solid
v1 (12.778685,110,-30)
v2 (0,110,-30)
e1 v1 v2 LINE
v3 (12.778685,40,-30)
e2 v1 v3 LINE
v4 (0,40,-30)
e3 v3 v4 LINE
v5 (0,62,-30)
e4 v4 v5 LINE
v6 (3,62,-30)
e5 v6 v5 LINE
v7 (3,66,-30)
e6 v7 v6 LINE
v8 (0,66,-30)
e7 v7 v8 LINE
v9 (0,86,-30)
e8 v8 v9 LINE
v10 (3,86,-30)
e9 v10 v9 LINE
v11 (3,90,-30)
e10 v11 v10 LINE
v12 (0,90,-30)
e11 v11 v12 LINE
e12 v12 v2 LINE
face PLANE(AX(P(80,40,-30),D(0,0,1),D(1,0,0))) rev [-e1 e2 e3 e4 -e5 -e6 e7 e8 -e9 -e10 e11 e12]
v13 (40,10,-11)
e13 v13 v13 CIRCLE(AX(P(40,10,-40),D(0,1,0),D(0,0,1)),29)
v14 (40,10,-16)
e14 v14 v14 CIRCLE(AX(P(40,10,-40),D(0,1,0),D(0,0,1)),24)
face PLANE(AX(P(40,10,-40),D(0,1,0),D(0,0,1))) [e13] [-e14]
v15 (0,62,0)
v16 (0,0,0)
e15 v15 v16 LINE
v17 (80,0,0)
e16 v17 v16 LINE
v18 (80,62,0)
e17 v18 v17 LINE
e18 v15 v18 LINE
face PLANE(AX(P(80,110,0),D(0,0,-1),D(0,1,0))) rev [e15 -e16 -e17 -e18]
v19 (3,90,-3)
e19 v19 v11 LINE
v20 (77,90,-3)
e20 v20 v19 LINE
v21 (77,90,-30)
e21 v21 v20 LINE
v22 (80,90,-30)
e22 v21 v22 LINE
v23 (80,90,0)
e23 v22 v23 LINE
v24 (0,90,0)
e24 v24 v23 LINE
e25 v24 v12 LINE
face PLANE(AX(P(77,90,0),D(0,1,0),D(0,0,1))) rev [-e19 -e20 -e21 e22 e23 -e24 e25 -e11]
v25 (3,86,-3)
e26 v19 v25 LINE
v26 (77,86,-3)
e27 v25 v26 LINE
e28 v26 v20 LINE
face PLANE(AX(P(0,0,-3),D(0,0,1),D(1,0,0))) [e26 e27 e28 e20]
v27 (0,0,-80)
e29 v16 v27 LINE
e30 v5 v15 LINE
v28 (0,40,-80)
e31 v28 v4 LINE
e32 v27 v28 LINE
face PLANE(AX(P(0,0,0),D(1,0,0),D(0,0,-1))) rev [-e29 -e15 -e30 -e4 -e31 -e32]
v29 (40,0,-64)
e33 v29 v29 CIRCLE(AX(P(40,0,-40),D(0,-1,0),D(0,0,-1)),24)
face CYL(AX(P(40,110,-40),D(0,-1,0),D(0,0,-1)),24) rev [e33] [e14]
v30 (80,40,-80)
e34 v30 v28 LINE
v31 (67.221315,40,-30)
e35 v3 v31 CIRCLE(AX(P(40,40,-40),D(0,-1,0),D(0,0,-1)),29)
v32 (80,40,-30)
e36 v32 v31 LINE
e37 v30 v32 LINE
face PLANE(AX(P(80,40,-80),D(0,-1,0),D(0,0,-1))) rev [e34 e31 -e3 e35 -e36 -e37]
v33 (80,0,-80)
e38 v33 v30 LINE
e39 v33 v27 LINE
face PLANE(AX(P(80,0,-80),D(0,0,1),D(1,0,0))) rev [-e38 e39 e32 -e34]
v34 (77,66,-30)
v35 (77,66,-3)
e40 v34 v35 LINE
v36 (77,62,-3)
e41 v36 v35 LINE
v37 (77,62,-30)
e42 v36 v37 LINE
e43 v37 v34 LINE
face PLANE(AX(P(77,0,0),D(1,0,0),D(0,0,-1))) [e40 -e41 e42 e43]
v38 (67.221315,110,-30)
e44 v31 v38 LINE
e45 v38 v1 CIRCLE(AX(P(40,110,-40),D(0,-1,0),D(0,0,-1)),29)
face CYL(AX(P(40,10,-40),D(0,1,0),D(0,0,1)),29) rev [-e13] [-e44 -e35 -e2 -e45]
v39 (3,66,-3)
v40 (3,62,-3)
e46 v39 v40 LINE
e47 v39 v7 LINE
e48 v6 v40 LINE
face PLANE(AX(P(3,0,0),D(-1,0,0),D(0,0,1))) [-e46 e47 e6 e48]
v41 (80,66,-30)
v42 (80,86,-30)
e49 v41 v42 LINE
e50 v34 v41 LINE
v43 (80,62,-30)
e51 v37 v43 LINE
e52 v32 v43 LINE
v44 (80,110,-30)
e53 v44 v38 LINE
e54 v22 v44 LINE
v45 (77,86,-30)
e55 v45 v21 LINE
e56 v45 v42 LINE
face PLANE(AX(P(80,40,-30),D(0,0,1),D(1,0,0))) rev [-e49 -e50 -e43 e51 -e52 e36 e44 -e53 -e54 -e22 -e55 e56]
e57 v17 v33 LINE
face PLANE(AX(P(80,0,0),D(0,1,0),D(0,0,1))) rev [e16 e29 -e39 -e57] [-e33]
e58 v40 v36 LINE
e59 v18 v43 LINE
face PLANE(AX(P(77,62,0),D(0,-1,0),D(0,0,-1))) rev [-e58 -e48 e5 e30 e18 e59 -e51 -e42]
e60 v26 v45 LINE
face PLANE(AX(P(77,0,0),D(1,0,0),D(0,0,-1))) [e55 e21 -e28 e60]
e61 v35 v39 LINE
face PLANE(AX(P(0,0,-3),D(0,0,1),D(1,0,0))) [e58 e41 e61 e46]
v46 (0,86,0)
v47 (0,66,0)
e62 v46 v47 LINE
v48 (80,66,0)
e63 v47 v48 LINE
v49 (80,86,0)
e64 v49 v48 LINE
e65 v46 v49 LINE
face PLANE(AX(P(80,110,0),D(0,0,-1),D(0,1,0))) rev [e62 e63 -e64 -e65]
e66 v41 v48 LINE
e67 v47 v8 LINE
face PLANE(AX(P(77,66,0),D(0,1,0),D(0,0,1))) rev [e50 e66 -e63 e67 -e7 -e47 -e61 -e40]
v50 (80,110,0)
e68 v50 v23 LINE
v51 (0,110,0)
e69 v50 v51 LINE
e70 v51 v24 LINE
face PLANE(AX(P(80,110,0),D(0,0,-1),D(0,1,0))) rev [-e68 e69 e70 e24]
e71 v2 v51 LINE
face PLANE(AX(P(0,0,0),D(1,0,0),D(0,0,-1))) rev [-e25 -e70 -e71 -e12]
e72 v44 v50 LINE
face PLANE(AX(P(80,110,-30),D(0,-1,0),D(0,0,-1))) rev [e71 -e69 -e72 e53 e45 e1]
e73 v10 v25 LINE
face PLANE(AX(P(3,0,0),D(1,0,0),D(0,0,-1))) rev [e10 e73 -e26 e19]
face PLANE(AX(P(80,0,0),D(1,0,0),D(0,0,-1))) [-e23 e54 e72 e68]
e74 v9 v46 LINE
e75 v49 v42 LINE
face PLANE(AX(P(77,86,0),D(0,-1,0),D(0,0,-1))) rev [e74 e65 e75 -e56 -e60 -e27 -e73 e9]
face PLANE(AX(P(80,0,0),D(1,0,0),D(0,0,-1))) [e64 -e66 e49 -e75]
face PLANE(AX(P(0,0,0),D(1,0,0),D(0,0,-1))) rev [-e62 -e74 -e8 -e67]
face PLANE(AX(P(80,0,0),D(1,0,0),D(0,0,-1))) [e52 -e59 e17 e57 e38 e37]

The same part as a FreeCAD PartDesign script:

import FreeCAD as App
import Part
import Sketcher
from FreeCAD import Vector

doc = App.newDocument("Part")
body = doc.addObject("PartDesign::Body", "Body")

# Sketch on YZ plane
sketch1 = doc.addObject("Sketcher::SketchObject", "Sketch")
body.addObject(sketch1)
sketch1.AttachmentSupport = (doc.YZ_Plane, [""])
sketch1.MapMode = "FlatFace"
sketch1.addGeometry([
    Part.LineSegment(Vector(0, 0, 0), Vector(0, -80, 0)),  # 0
    Part.LineSegment(Vector(0, -80, 0), Vector(40, -80, 0)),  # 1
    Part.LineSegment(Vector(40, -80, 0), Vector(40, -30, 0)),  # 2
    Part.LineSegment(Vector(40, -30, 0), Vector(110, -30, 0)),  # 3
    Part.LineSegment(Vector(110, -30, 0), Vector(110, 0, 0)),  # 4
    Part.LineSegment(Vector(110, 0, 0), Vector(0, 0, 0)),  # 5
], False)
sketch1.addConstraint([
    Sketcher.Constraint("Coincident", 0, 2, 1, 1),
    Sketcher.Constraint("Coincident", 1, 2, 2, 1),
    Sketcher.Constraint("Coincident", 2, 2, 3, 1),
    Sketcher.Constraint("Coincident", 3, 2, 4, 1),
    Sketcher.Constraint("Coincident", 4, 2, 5, 1),
    Sketcher.Constraint("Coincident", 5, 2, 0, 1),
    Sketcher.Constraint("Vertical", 0),
    Sketcher.Constraint("Horizontal", 1),
    Sketcher.Constraint("Vertical", 2),
    Sketcher.Constraint("Horizontal", 3),
    Sketcher.Constraint("Vertical", 4),
    Sketcher.Constraint("Horizontal", 5),
    Sketcher.Constraint("Coincident", 5, 2, -1, 1),
    Sketcher.Constraint("DistanceX", 1, 1, 1, 2, 40.0),
    Sketcher.Constraint("DistanceX", 3, 1, 3, 2, 70.0),
    Sketcher.Constraint("DistanceY", 0, 2, 0, 1, 80.0),
    Sketcher.Constraint("DistanceY", 2, 1, 2, 2, 50.0),
])
pad1 = doc.addObject("PartDesign::Pad", "Pad")
body.addObject(pad1)
pad1.Profile = sketch1
pad1.Length = 80

# Sketch on XZ plane
sketch2 = doc.addObject("Sketcher::SketchObject", "Sketch001")
body.addObject(sketch2)
sketch2.AttachmentSupport = (doc.XZ_Plane, [""])
sketch2.MapMode = "FlatFace"
sketch2.AttachmentOffset = App.Placement(Vector(0, 0, -110), App.Rotation())
sketch2.addGeometry(Part.Circle(Vector(40, -40, 0), Vector(0, 0, 1), 29), False)
sketch2.addConstraint([
    Sketcher.Constraint("Diameter", 0, 58.0),
    Sketcher.Constraint("DistanceX", -1, 1, 0, 3, 40.0),
    Sketcher.Constraint("DistanceY", 0, 3, -1, 1, 40.0),
])
pocket1 = doc.addObject("PartDesign::Pocket", "Pocket")
body.addObject(pocket1)
pocket1.Profile = sketch2
pocket1.Length = 100
pocket1.Reversed = True

# Sketch on XZ plane
sketch3 = doc.addObject("Sketcher::SketchObject", "Sketch002")
body.addObject(sketch3)
sketch3.AttachmentSupport = (doc.XZ_Plane, [""])
sketch3.MapMode = "FlatFace"
sketch3.addGeometry(Part.Circle(Vector(40, -40, 0), Vector(0, 0, 1), 24), False)
sketch3.addConstraint([
    Sketcher.Constraint("Diameter", 0, 48.0),
    Sketcher.Constraint("DistanceX", -1, 1, 0, 3, 40.0),
    Sketcher.Constraint("DistanceY", 0, 3, -1, 1, 40.0),
])
pocket2 = doc.addObject("PartDesign::Pocket", "Pocket001")
body.addObject(pocket2)
pocket2.Profile = sketch3
pocket2.Type = "ThroughAll"

# Sketch on YZ plane
sketch4 = doc.addObject("Sketcher::SketchObject", "Sketch003")
body.addObject(sketch4)
sketch4.AttachmentSupport = (doc.YZ_Plane, [""])
sketch4.MapMode = "FlatFace"
sketch4.AttachmentOffset = App.Placement(Vector(0, 0, 80), App.Rotation())
sketch4.addGeometry([
    Part.LineSegment(Vector(90, 0, 0), Vector(86, 0, 0)),  # 0
    Part.LineSegment(Vector(86, 0, 0), Vector(86, -30, 0)),  # 1
    Part.LineSegment(Vector(86, -30, 0), Vector(90, -30, 0)),  # 2
    Part.LineSegment(Vector(90, -30, 0), Vector(90, 0, 0)),  # 3
    Part.LineSegment(Vector(66, 0, 0), Vector(62, 0, 0)),  # 4
    Part.LineSegment(Vector(62, 0, 0), Vector(62, -30, 0)),  # 5
    Part.LineSegment(Vector(62, -30, 0), Vector(66, -30, 0)),  # 6
    Part.LineSegment(Vector(66, -30, 0), Vector(66, 0, 0)),  # 7
], False)
sketch4.addConstraint([
    Sketcher.Constraint("Coincident", 0, 2, 1, 1),
    Sketcher.Constraint("Coincident", 1, 2, 2, 1),
    Sketcher.Constraint("Coincident", 2, 2, 3, 1),
    Sketcher.Constraint("Coincident", 3, 2, 0, 1),
    Sketcher.Constraint("Coincident", 4, 2, 5, 1),
    Sketcher.Constraint("Coincident", 5, 2, 6, 1),
    Sketcher.Constraint("Coincident", 6, 2, 7, 1),
    Sketcher.Constraint("Coincident", 7, 2, 4, 1),
    Sketcher.Constraint("Horizontal", 0),
    Sketcher.Constraint("Vertical", 1),
    Sketcher.Constraint("Horizontal", 2),
    Sketcher.Constraint("Vertical", 3),
    Sketcher.Constraint("Horizontal", 4),
    Sketcher.Constraint("Vertical", 5),
    Sketcher.Constraint("Horizontal", 6),
    Sketcher.Constraint("Vertical", 7),
    Sketcher.Constraint("PointOnObject", 0, 2, -1),
    Sketcher.Constraint("PointOnObject", 4, 2, -1),
    Sketcher.Constraint("Horizontal", 2, 2, 5, 2),
    Sketcher.Constraint("Equal", 2, 4),
    Sketcher.Constraint("DistanceX", 0, 2, 0, 1, 4.0),
    Sketcher.Constraint("DistanceY", 1, 2, 1, 1, 30.0),
    Sketcher.Constraint("DistanceX", -1, 1, 0, 2, 86.0),
    Sketcher.Constraint("DistanceX", -1, 1, 4, 2, 62.0),
])
pocket3 = doc.addObject("PartDesign::Pocket", "Pocket002")
body.addObject(pocket3)
pocket3.Profile = sketch4
pocket3.Length = 3

# Sketch on YZ plane
sketch5 = doc.addObject("Sketcher::SketchObject", "Sketch004")
body.addObject(sketch5)
sketch5.AttachmentSupport = (doc.YZ_Plane, [""])
sketch5.MapMode = "FlatFace"
sketch5.addGeometry([
    Part.LineSegment(Vector(90, -30, 0), Vector(86, -30, 0)),  # 0
    Part.LineSegment(Vector(86, -30, 0), Vector(86, 0, 0)),  # 1
    Part.LineSegment(Vector(86, 0, 0), Vector(90, 0, 0)),  # 2
    Part.LineSegment(Vector(90, 0, 0), Vector(90, -30, 0)),  # 3
    Part.LineSegment(Vector(66, -30, 0), Vector(62, -30, 0)),  # 4
    Part.LineSegment(Vector(62, -30, 0), Vector(62, 0, 0)),  # 5
    Part.LineSegment(Vector(62, 0, 0), Vector(66, 0, 0)),  # 6
    Part.LineSegment(Vector(66, 0, 0), Vector(66, -30, 0)),  # 7
], False)
sketch5.addConstraint([
    Sketcher.Constraint("Coincident", 0, 2, 1, 1),
    Sketcher.Constraint("Coincident", 1, 2, 2, 1),
    Sketcher.Constraint("Coincident", 2, 2, 3, 1),
    Sketcher.Constraint("Coincident", 3, 2, 0, 1),
    Sketcher.Constraint("Coincident", 4, 2, 5, 1),
    Sketcher.Constraint("Coincident", 5, 2, 6, 1),
    Sketcher.Constraint("Coincident", 6, 2, 7, 1),
    Sketcher.Constraint("Coincident", 7, 2, 4, 1),
    Sketcher.Constraint("Horizontal", 0),
    Sketcher.Constraint("Vertical", 1),
    Sketcher.Constraint("Horizontal", 2),
    Sketcher.Constraint("Vertical", 3),
    Sketcher.Constraint("Horizontal", 4),
    Sketcher.Constraint("Vertical", 5),
    Sketcher.Constraint("Horizontal", 6),
    Sketcher.Constraint("Vertical", 7),
    Sketcher.Constraint("PointOnObject", 1, 2, -1),
    Sketcher.Constraint("PointOnObject", 5, 2, -1),
    Sketcher.Constraint("Horizontal", 3, 2, 4, 2),
    Sketcher.Constraint("Equal", 2, 4),
    Sketcher.Constraint("DistanceX", 0, 2, 0, 1, 4.0),
    Sketcher.Constraint("DistanceY", 1, 1, 1, 2, 30.0),
    Sketcher.Constraint("DistanceX", -1, 1, 0, 2, 86.0),
    Sketcher.Constraint("DistanceX", -1, 1, 4, 2, 62.0),
])
pocket4 = doc.addObject("PartDesign::Pocket", "Pocket003")
body.addObject(pocket4)
pocket4.Profile = sketch5
pocket4.Length = 3
pocket4.Reversed = True

# Sketch on XY plane
sketch6 = doc.addObject("Sketcher::SketchObject", "Sketch005")
body.addObject(sketch6)
sketch6.AttachmentSupport = (doc.XY_Plane, [""])
sketch6.MapMode = "FlatFace"
sketch6.addGeometry([
    Part.LineSegment(Vector(3, 90, 0), Vector(3, 86, 0)),  # 0
    Part.LineSegment(Vector(3, 86, 0), Vector(77, 86, 0)),  # 1
    Part.LineSegment(Vector(77, 86, 0), Vector(77, 90, 0)),  # 2
    Part.LineSegment(Vector(77, 90, 0), Vector(3, 90, 0)),  # 3
    Part.LineSegment(Vector(3, 66, 0), Vector(3, 62, 0)),  # 4
    Part.LineSegment(Vector(3, 62, 0), Vector(77, 62, 0)),  # 5
    Part.LineSegment(Vector(77, 62, 0), Vector(77, 66, 0)),  # 6
    Part.LineSegment(Vector(77, 66, 0), Vector(3, 66, 0)),  # 7
], False)
sketch6.addConstraint([
    Sketcher.Constraint("Coincident", 0, 2, 1, 1),
    Sketcher.Constraint("Coincident", 1, 2, 2, 1),
    Sketcher.Constraint("Coincident", 2, 2, 3, 1),
    Sketcher.Constraint("Coincident", 3, 2, 0, 1),
    Sketcher.Constraint("Coincident", 4, 2, 5, 1),
    Sketcher.Constraint("Coincident", 5, 2, 6, 1),
    Sketcher.Constraint("Coincident", 6, 2, 7, 1),
    Sketcher.Constraint("Coincident", 7, 2, 4, 1),
    Sketcher.Constraint("Vertical", 0),
    Sketcher.Constraint("Horizontal", 1),
    Sketcher.Constraint("Vertical", 2),
    Sketcher.Constraint("Horizontal", 3),
    Sketcher.Constraint("Vertical", 4),
    Sketcher.Constraint("Horizontal", 5),
    Sketcher.Constraint("Vertical", 6),
    Sketcher.Constraint("Horizontal", 7),
    Sketcher.Constraint("Vertical", 3, 2, 4, 2),
    Sketcher.Constraint("Vertical", 2, 2, 5, 2),
    Sketcher.Constraint("Equal", 2, 4),
    Sketcher.Constraint("DistanceX", 1, 1, 1, 2, 74.0),
    Sketcher.Constraint("DistanceY", 0, 2, 0, 1, 4.0),
    Sketcher.Constraint("DistanceX", -1, 1, 0, 2, 3.0),
    Sketcher.Constraint("DistanceY", -1, 1, 0, 2, 86.0),
    Sketcher.Constraint("DistanceY", -1, 1, 4, 2, 62.0),
])
pocket5 = doc.addObject("PartDesign::Pocket", "Pocket004")
body.addObject(pocket5)
pocket5.Profile = sketch6
pocket5.Length = 3

doc.recompute()
